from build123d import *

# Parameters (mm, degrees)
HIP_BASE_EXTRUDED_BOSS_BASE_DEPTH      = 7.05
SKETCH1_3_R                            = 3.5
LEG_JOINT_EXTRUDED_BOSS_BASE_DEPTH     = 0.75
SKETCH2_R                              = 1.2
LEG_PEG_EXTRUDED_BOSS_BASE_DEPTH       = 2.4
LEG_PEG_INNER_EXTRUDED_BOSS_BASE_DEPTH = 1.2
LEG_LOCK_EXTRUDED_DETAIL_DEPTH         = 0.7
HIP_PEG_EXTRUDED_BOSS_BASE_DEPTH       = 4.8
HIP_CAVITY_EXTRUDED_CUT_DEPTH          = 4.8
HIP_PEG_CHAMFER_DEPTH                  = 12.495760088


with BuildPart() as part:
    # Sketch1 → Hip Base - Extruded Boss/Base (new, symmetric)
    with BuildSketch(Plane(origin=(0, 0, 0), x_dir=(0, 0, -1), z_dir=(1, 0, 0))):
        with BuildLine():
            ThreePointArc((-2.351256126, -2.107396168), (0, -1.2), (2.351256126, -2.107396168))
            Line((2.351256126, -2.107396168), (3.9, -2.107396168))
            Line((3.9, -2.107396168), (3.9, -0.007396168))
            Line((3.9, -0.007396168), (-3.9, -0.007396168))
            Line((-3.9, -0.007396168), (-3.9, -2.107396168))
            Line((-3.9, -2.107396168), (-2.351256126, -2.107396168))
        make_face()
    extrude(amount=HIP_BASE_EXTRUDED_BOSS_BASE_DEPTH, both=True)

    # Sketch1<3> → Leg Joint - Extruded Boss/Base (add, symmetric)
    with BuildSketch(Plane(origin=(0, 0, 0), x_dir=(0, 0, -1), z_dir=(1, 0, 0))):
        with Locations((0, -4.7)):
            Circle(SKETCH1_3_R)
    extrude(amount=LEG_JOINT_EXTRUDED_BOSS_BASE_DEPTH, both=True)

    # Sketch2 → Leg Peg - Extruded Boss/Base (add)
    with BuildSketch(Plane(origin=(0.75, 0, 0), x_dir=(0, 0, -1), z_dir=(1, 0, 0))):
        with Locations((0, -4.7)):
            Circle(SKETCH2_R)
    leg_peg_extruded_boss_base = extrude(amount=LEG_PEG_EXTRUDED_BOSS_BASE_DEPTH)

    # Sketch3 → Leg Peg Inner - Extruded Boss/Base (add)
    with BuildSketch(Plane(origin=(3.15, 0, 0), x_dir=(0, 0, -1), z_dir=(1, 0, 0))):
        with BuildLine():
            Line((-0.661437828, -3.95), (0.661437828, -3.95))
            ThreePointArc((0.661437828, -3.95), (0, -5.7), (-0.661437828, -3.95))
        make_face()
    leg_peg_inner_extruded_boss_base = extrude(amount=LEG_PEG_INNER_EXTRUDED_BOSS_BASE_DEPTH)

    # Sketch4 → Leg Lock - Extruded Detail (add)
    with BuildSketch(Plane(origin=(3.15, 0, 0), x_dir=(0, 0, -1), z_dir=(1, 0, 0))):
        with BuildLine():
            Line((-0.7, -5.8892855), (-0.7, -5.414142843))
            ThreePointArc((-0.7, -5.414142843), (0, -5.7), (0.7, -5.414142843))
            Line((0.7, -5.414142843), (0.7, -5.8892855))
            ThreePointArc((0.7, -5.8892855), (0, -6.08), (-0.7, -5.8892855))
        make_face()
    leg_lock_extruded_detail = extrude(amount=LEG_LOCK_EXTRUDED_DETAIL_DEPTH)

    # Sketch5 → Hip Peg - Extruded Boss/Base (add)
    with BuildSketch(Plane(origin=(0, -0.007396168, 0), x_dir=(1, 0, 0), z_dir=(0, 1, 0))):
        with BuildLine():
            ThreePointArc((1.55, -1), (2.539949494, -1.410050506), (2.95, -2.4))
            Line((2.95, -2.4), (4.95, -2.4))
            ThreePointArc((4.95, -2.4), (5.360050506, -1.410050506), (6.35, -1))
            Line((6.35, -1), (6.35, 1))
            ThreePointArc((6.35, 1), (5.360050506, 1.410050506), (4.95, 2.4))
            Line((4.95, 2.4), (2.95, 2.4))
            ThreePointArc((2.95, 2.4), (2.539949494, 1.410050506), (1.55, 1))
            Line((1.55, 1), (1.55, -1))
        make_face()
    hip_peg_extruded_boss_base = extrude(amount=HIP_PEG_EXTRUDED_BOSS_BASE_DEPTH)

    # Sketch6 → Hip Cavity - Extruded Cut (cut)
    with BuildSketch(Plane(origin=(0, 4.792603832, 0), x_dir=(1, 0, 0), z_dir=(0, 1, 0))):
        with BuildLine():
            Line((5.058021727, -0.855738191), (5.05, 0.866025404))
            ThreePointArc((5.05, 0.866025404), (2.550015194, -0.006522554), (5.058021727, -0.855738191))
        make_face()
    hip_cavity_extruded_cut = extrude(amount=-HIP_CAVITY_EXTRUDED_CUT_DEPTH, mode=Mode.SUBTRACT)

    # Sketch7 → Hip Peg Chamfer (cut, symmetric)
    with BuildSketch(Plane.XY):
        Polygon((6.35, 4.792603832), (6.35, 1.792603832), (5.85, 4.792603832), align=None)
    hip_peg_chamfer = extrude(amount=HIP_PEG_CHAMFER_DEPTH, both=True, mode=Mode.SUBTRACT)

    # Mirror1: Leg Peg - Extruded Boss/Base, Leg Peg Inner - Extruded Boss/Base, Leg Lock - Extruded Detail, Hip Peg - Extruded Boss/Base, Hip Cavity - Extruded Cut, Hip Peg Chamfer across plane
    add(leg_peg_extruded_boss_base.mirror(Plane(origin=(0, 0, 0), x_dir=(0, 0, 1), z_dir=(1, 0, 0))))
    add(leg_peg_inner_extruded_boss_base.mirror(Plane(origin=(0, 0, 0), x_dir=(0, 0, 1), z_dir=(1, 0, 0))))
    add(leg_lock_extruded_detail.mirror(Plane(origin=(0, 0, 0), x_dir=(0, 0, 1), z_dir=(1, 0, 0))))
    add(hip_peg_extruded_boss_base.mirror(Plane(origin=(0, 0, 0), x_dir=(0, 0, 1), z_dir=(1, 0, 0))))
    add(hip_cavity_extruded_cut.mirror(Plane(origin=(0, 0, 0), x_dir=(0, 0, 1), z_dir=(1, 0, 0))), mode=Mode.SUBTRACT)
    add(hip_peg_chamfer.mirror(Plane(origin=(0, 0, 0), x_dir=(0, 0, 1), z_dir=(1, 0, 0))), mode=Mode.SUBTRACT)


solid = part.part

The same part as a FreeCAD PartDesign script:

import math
import FreeCAD as App
import Part
import Sketcher

V = App.Vector

doc = App.newDocument("Part")
body = doc.addObject("PartDesign::Body", "Body")

# Sketch on YZ plane
sketch1 = doc.addObject("Sketcher::SketchObject", "Sketch")
body.addObject(sketch1)
sketch1.AttachmentSupport = (doc.YZ_Plane, [""])
sketch1.MapMode = "FlatFace"
sketch1.addGeometry([
    Part.ArcOfCircle(Part.Circle(V(-4.7, 0, 0), V(0, 0, 1), 3.5), math.radians(-42), math.radians(42)),  # 0
    Part.LineSegment(V(-2.1, -2.4, 0), V(-2.1, -3.9, 0)),  # 1
    Part.LineSegment(V(-2.1, -3.9, 0), V(0, -3.9, 0)),  # 2
    Part.LineSegment(V(0, -3.9, 0), V(0, 3.9, 0)),  # 3
    Part.LineSegment(V(0, 3.9, 0), V(-2.1, 3.9, 0)),  # 4
    Part.LineSegment(V(-2.1, 3.9, 0), V(-2.1, 2.4, 0)),  # 5
], False)
sketch1.addConstraint([
    Sketcher.Constraint("Coincident", 0, 1, 1, 1),
    Sketcher.Constraint("Coincident", 1, 2, 2, 1),
    Sketcher.Constraint("Coincident", 2, 2, 3, 1),
    Sketcher.Constraint("Coincident", 3, 2, 4, 1),
    Sketcher.Constraint("Coincident", 4, 2, 5, 1),
    Sketcher.Constraint("Coincident", 5, 2, 0, 2),
    Sketcher.Constraint("Vertical", 1),
    Sketcher.Constraint("Horizontal", 2),
    Sketcher.Constraint("Vertical", 3),
    Sketcher.Constraint("Horizontal", 4),
    Sketcher.Constraint("Vertical", 5),
    Sketcher.Constraint("Symmetric", 1, 2, 4, 2, -1),
    Sketcher.Constraint("PointOnObject", 0, 3, -1),
    Sketcher.Constraint("Radius", 0, 3.5),
    Sketcher.Constraint("DistanceX", 2, 1, 2, 2, 2.1),
    Sketcher.Constraint("DistanceY", 3, 1, 3, 2, 7.8),
    Sketcher.Constraint("DistanceX", 0, 3, -1, 1, 4.7),
    Sketcher.Constraint("DistanceY", 1, 2, 1, 1, 1.548744),
])
pad1 = doc.addObject("PartDesign::Pad", "Pad")
body.addObject(pad1)
pad1.Profile = sketch1
pad1.Length = 14.1
pad1.Midplane = True

# Sketch on YZ plane
sketch2 = doc.addObject("Sketcher::SketchObject", "Sketch001")
body.addObject(sketch2)
sketch2.AttachmentSupport = (doc.YZ_Plane, [""])
sketch2.MapMode = "FlatFace"
sketch2.addGeometry(Part.Circle(V(-4.7, 0, 0), V(0, 0, 1), 3.5), False)
sketch2.addConstraint([
    Sketcher.Constraint("PointOnObject", 0, 3, -1),
    Sketcher.Constraint("Diameter", 0, 7.0),
    Sketcher.Constraint("DistanceX", 0, 3, -1, 1, 4.7),
])
pad2 = doc.addObject("PartDesign::Pad", "Pad001")
body.addObject(pad2)
pad2.Profile = sketch2
pad2.Length = 1.5
pad2.Midplane = True

# Sketch on YZ plane
sketch3 = doc.addObject("Sketcher::SketchObject", "Sketch002")
body.addObject(sketch3)
sketch3.AttachmentSupport = (doc.YZ_Plane, [""])
sketch3.MapMode = "FlatFace"
sketch3.AttachmentOffset = App.Placement(V(0, 0, 0.75), App.Rotation())
sketch3.addGeometry(Part.Circle(V(-4.7, 0, 0), V(0, 0, 1), 1.2), False)
sketch3.addConstraint([
    Sketcher.Constraint("PointOnObject", 0, 3, -1),
    Sketcher.Constraint("Diameter", 0, 2.4),
    Sketcher.Constraint("DistanceX", 0, 3, -1, 1, 4.7),
])
pad3 = doc.addObject("PartDesign::Pad", "Pad002")
body.addObject(pad3)
pad3.Profile = sketch3
pad3.Length = 2.4

# Sketch on YZ plane
sketch4 = doc.addObject("Sketcher::SketchObject", "Sketch003")
body.addObject(sketch4)
sketch4.AttachmentSupport = (doc.YZ_Plane, [""])
sketch4.MapMode = "FlatFace"
sketch4.AttachmentOffset = App.Placement(V(0, 0, 3.15), App.Rotation())
sketch4.addGeometry([
    Part.LineSegment(V(-4, -0.7, 0), V(-4, 0.7, 0)),
    Part.ArcOfCircle(Part.Circle(V(-4.7, 0, 0), V(0, 0, 1), 1), math.radians(41), math.radians(319)),
], False)
sketch4.addConstraint([
    Sketcher.Constraint("Coincident", 0, 1, 1, 2),
    Sketcher.Constraint("Coincident", 1, 1, 0, 2),
    Sketcher.Constraint("Vertical", 0),
    Sketcher.Constraint("PointOnObject", 1, 3, -1),
    Sketcher.Constraint("Radius", 1, 1.0),
    Sketcher.Constraint("DistanceX", 1, 3, -1, 1, 4.7),
    Sketcher.Constraint("DistanceX", 0, 1, -1, 1, 3.95),
])
pad4 = doc.addObject("PartDesign::Pad", "Pad003")
body.addObject(pad4)
pad4.Profile = sketch4
pad4.Length = 1.2

# Sketch on YZ plane
sketch5 = doc.addObject("Sketcher::SketchObject", "Sketch004")
body.addObject(sketch5)
sketch5.AttachmentSupport = (doc.YZ_Plane, [""])
sketch5.MapMode = "FlatFace"
sketch5.AttachmentOffset = App.Placement(V(0, 0, 3.15), App.Rotation())
sketch5.addGeometry([
    Part.LineSegment(V(-5.41, 0.7, 0), V(-5.89, 0.7, 0)),
    Part.ArcOfCircle(Part.Circle(V(-4.7, 0, 0), V(0, 0, 1), 1.38), math.radians(150), math.radians(210)),
    Part.LineSegment(V(-5.89, -0.7, 0), V(-5.41, -0.7, 0)),
    Part.ArcOfCircle(Part.Circle(V(-4.7, 0, 0), V(0, 0, 1), 1), math.radians(136), math.radians(224)),
], False)
sketch5.addConstraint([
    Sketcher.Constraint("Coincident", 0, 2, 1, 1),
    Sketcher.Constraint("Coincident", 1, 2, 2, 1),
    Sketcher.Constraint("Coincident", 2, 2, 3, 2),
    Sketcher.Constraint("Coincident", 3, 1, 0, 1),
    Sketcher.Constraint("Horizontal", 0),
    Sketcher.Constraint("Horizontal", 2),
    Sketcher.Constraint("Coincident", 3, 3, 1, 3),
    Sketcher.Constraint("Symmetric", 0, 2, 1, 2, -1),
    Sketcher.Constraint("Radius", 3, 1.0),
    Sketcher.Constraint("Radius", 1, 1.38),
    Sketcher.Constraint("DistanceX", 1, 3, -1, 1, 4.7),
    Sketcher.Constraint("DistanceY", -1, 1, 0, 2, 0.7),
])
pad5 = doc.addObject("PartDesign::Pad", "Pad004")
body.addObject(pad5)
pad5.Profile = sketch5
pad5.Length = 0.7

# Sketch on XZ plane
sketch6 = doc.addObject("Sketcher::SketchObject", "Sketch005")
body.addObject(sketch6)
sketch6.AttachmentSupport = (doc.XZ_Plane, [""])
sketch6.MapMode = "FlatFace"
sketch6.AttachmentOffset = App.Placement(V(0, 0, 0.007396), App.Rotation())
sketch6.addGeometry([
    Part.ArcOfCircle(Part.Circle(V(1.6, 2.4, 0), V(0, 0, 1), 1.4), math.radians(-90), math.radians(0)),  # 0
    Part.LineSegment(V(3, 2.4, 0), V(5, 2.4, 0)),  # 1
    Part.ArcOfCircle(Part.Circle(V(6.3, 2.4, 0), V(0, 0, 1), 1.4), math.radians(180), math.radians(270)),  # 2
    Part.LineSegment(V(6.3, 1, 0), V(6.3, -1, 0)),  # 3
    Part.ArcOfCircle(Part.Circle(V(6.3, -2.4, 0), V(0, 0, 1), 1.4), math.radians(90), math.radians(180)),  # 4
    Part.LineSegment(V(5, -2.4, 0), V(3, -2.4, 0)),  # 5
    Part.ArcOfCircle(Part.Circle(V(1.6, -2.4, 0), V(0, 0, 1), 1.4), math.radians(0), math.radians(90)),  # 6
    Part.LineSegment(V(1.6, -1, 0), V(1.6, 1, 0)),  # 7
], False)
sketch6.addConstraint([
    Sketcher.Constraint("Coincident", 0, 2, 1, 1),
    Sketcher.Constraint("Coincident", 1, 2, 2, 1),
    Sketcher.Constraint("Coincident", 2, 2, 3, 1),
    Sketcher.Constraint("Coincident", 3, 2, 4, 1),
    Sketcher.Constraint("Coincident", 4, 2, 5, 1),
    Sketcher.Constraint("Coincident", 5, 2, 6, 1),
    Sketcher.Constraint("Coincident", 6, 2, 7, 1),
    Sketcher.Constraint("Coincident", 7, 2, 0, 1),
    Sketcher.Constraint("Horizontal", 1),
    Sketcher.Constraint("Vertical", 3),
    Sketcher.Constraint("Horizontal", 5),
    Sketcher.Constraint("Vertical", 7),
    Sketcher.Constraint("Equal", 0, 2),
    Sketcher.Constraint("Equal", 2, 4),
    Sketcher.Constraint("Equal", 4, 6),
    Sketcher.Constraint("Symmetric", 2, 3, 4, 3, -1),
    Sketcher.Constraint("Symmetric", 0, 3, 6, 3, -1),
    Sketcher.Constraint("Horizontal", 0, 3, 2, 3),
    Sketcher.Constraint("Horizontal", 2, 3, 0, 2),
    Sketcher.Constraint("Horizontal", 6, 3, 4, 2),
    Sketcher.Constraint("Vertical", 4, 3, 2, 2),
    Sketcher.Constraint("Vertical", 0, 3, 6, 2),
    Sketcher.Constraint("Equal", 5, 3),
    Sketcher.Constraint("Radius", 0, 1.4),
    Sketcher.Constraint("DistanceX", 1, 1, 1, 2, 2.0),
    Sketcher.Constraint("DistanceX", -1, 1, 0, 3, 1.55),
])
pad6 = doc.addObject("PartDesign::Pad", "Pad005")
body.addObject(pad6)
pad6.Profile = sketch6
pad6.Length = 4.8
pad6.Reversed = True

# Sketch on XZ plane
sketch7 = doc.addObject("Sketcher::SketchObject", "Sketch006")
body.addObject(sketch7)
sketch7.AttachmentSupport = (doc.XZ_Plane, [""])
sketch7.MapMode = "FlatFace"
sketch7.AttachmentOffset = App.Placement(V(0, 0, -4.792604), App.Rotation())
sketch7.addGeometry([
    Part.LineSegment(V(5.1, 0.9, 0), V(5, -0.9, 0)),
    Part.ArcOfCircle(Part.Circle(V(4, 0, 0), V(0, 0, 1), 1.4), math.radians(38), math.radians(322)),
], False)
sketch7.addConstraint([
    Sketcher.Constraint("Coincident", 0, 1, 1, 1),
    Sketcher.Constraint("Coincident", 1, 2, 0, 2),
    Sketcher.Constraint("PointOnObject", 1, 3, -1),
    Sketcher.Constraint("Radius", 1, 1.4),
    Sketcher.Constraint("DistanceX", 1, 3, 1, 2, 1.1),
    Sketcher.Constraint("DistanceX", -1, 1, 1, 3, 3.95),
    Sketcher.Constraint("DistanceX", -1, 1, 0, 1, 5.058022),
])
pocket1 = doc.addObject("PartDesign::Pocket", "Pocket")
body.addObject(pocket1)
pocket1.Profile = sketch7
pocket1.Length = 4.8
pocket1.Reversed = True

# Sketch on XY plane
sketch8 = doc.addObject("Sketcher::SketchObject", "Sketch007")
body.addObject(sketch8)
sketch8.AttachmentSupport = (doc.XY_Plane, [""])
sketch8.MapMode = "FlatFace"
sketch8.addGeometry([
    Part.LineSegment(V(6.3, 1.8, 0), V(6.3, 4.8, 0)),
    Part.LineSegment(V(6.3, 4.8, 0), V(5.8, 4.8, 0)),
    Part.LineSegment(V(5.8, 4.8, 0), V(6.3, 1.8, 0)),
], False)
sketch8.addConstraint([
    Sketcher.Constraint("Coincident", 0, 2, 1, 1),
    Sketcher.Constraint("Coincident", 1, 2, 2, 1),
    Sketcher.Constraint("Coincident", 2, 2, 0, 1),
    Sketcher.Constraint("Vertical", 0),
    Sketcher.Constraint("Horizontal", 1),
    Sketcher.Constraint("DistanceY", 0, 1, 0, 2, 3.0),
    Sketcher.Constraint("DistanceX", 1, 2, 1, 1, 0.5),
    Sketcher.Constraint("DistanceX", -1, 1, 0, 2, 6.35),
    Sketcher.Constraint("DistanceY", -1, 1, 0, 2, 4.792604),
])
pocket2 = doc.addObject("PartDesign::Pocket", "Pocket001")
body.addObject(pocket2)
pocket2.Profile = sketch8
pocket2.Length = 24.99152
pocket2.Midplane = True
doc.recompute()

mirrored = doc.addObject("PartDesign::Mirrored", "Mirrored")
body.addObject(mirrored)
mirrored.Originals = [pad3, pad4, pad5, pad6, pocket1, pocket2]
mirrored.MirrorPlane = (doc.YZ_Plane, [""])
body.Tip = mirrored

doc.recompute()
